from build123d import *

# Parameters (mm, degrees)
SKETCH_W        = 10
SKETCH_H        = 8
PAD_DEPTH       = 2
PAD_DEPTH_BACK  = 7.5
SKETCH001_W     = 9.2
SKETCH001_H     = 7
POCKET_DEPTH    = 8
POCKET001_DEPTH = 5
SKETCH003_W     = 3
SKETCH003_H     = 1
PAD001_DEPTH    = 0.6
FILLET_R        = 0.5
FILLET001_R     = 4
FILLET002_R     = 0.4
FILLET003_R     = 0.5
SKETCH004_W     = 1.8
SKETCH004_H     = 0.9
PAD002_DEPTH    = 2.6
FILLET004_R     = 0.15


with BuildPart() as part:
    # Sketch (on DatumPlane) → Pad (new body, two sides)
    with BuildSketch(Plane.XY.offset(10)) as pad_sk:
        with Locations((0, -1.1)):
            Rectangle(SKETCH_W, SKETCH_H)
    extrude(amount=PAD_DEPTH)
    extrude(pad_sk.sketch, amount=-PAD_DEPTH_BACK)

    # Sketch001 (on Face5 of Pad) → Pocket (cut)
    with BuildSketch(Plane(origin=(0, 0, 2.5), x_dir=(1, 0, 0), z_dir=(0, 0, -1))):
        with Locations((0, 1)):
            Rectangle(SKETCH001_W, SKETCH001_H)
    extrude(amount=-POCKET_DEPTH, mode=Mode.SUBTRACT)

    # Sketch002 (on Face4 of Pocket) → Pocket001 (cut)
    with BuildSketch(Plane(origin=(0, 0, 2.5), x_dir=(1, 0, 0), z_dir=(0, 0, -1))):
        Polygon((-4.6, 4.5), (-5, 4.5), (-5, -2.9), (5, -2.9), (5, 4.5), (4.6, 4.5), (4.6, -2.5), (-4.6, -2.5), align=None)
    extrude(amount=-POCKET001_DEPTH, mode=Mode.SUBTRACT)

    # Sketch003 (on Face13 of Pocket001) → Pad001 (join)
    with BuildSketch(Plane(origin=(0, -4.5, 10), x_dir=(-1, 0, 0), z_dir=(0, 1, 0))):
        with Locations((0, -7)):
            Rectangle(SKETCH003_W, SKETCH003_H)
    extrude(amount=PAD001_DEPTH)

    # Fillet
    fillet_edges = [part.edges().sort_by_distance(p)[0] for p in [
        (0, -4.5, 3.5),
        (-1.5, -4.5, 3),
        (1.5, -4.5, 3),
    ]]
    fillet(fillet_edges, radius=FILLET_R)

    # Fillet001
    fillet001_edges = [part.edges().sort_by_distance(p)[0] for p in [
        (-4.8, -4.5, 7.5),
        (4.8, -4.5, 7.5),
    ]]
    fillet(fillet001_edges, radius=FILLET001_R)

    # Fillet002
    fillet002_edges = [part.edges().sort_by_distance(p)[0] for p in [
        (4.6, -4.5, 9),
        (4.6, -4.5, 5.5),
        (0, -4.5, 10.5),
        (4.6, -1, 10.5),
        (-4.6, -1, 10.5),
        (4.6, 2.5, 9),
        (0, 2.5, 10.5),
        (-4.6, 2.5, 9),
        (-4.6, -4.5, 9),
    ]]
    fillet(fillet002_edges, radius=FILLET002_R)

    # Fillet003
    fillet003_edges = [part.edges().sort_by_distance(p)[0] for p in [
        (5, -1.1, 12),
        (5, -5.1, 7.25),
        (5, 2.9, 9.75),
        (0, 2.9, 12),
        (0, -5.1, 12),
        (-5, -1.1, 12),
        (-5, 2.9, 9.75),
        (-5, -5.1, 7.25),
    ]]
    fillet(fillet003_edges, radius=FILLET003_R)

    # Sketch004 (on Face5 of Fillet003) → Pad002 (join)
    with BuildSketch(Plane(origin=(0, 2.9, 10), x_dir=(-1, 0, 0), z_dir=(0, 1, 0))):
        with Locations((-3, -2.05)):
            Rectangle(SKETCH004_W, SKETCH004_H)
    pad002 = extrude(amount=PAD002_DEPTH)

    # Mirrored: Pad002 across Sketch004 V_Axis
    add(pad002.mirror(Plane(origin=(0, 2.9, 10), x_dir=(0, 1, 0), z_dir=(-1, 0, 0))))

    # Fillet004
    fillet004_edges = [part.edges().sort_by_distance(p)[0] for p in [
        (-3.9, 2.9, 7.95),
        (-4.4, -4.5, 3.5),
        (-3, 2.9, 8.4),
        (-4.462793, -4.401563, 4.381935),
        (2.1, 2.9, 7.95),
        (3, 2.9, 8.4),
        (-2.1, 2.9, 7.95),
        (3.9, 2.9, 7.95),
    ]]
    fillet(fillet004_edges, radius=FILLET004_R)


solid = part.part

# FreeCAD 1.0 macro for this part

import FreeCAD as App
import Part
import Sketcher
Q = App.Units.Quantity


def edges_at(feature, points):
    """Names of the edges that pass closest to the given points."""
    edges = feature.Shape.Edges
    near = lambda p: min(range(len(edges)), key=lambda i: edges[i].distToShape(Part.Vertex(*p))[0])
    return sorted({f"Edge{near(p) + 1}" for p in points})

doc = App.newDocument("Part")
body = doc.addObject("PartDesign::Body", "Body")

# Sketch on XY plane
sketch1 = doc.addObject("Sketcher::SketchObject", "Sketch")
body.addObject(sketch1)
sketch1.AttachmentSupport = (doc.XY_Plane, [""])
sketch1.MapMode = "FlatFace"
sketch1.AttachmentOffset = App.Placement(App.Vector(0, 0, 10), App.Rotation())
sketch1.addGeometry([
    Part.LineSegment(App.Vector(-5, 3, 0), App.Vector(-5, -5, 0)),
    Part.LineSegment(App.Vector(-5, -5, 0), App.Vector(5, -5, 0)),
    Part.LineSegment(App.Vector(5, -5, 0), App.Vector(5, 3, 0)),
    Part.LineSegment(App.Vector(5, 3, 0), App.Vector(-5, 3, 0)),
], False)
sketch1.addConstraint([
    Sketcher.Constraint("Coincident", 0, 2, 1, 1),
    Sketcher.Constraint("Coincident", 1, 2, 2, 1),
    Sketcher.Constraint("Coincident", 2, 2, 3, 1),
    Sketcher.Constraint("Coincident", 3, 2, 0, 1),
    Sketcher.Constraint("Vertical", 0),
    Sketcher.Constraint("Horizontal", 1),
    Sketcher.Constraint("Vertical", 2),
    Sketcher.Constraint("Horizontal", 3),
    Sketcher.Constraint("DistanceX", 1, 1, 1, 2, Q("10 mm")),
    Sketcher.Constraint("DistanceY", 0, 2, 0, 1, Q("8 mm")),
    Sketcher.Constraint("DistanceX", 0, 2, -1, 1, Q("5 mm")),
    Sketcher.Constraint("DistanceY", 0, 2, -1, 1, Q("5.1 mm")),
])
pad1 = doc.addObject("PartDesign::Pad", "Pad")
body.addObject(pad1)
pad1.Profile = sketch1
pad1.Type = "TwoLengths"
pad1.Length = 2
pad1.Length2 = 7.5

# Sketch on XY plane
sketch2 = doc.addObject("Sketcher::SketchObject", "Sketch001")
body.addObject(sketch2)
sketch2.AttachmentSupport = (doc.XY_Plane, [""])
sketch2.MapMode = "FlatFace"
sketch2.AttachmentOffset = App.Placement(App.Vector(0, 0, 2.5), App.Rotation())
sketch2.addGeometry([
    Part.LineSegment(App.Vector(-5, -4, 0), App.Vector(-5, 2, 0)),
    Part.LineSegment(App.Vector(-5, 2, 0), App.Vector(5, 2, 0)),
    Part.LineSegment(App.Vector(5, 2, 0), App.Vector(5, -4, 0)),
    Part.LineSegment(App.Vector(5, -4, 0), App.Vector(-5, -4, 0)),
], False)
sketch2.addConstraint([
    Sketcher.Constraint("Coincident", 0, 2, 1, 1),
    Sketcher.Constraint("Coincident", 1, 2, 2, 1),
    Sketcher.Constraint("Coincident", 2, 2, 3, 1),
    Sketcher.Constraint("Coincident", 3, 2, 0, 1),
    Sketcher.Constraint("Vertical", 0),
    Sketcher.Constraint("Horizontal", 1),
    Sketcher.Constraint("Vertical", 2),
    Sketcher.Constraint("Horizontal", 3),
    Sketcher.Constraint("DistanceY", 0, 1, 0, 2, Q("7 mm")),
    Sketcher.Constraint("DistanceX", 1, 1, 1, 2, Q("9.2 mm")),
    Sketcher.Constraint("DistanceX", 0, 2, -1, 1, Q("4.6 mm")),
    Sketcher.Constraint("DistanceY", -1, 1, 0, 2, Q("2.5 mm")),
])
pocket1 = doc.addObject("PartDesign::Pocket", "Pocket")
body.addObject(pocket1)
pocket1.Profile = sketch2
pocket1.Length = 8
pocket1.Reversed = True

# Sketch on XY plane
sketch3 = doc.addObject("Sketcher::SketchObject", "Sketch002")
body.addObject(sketch3)
sketch3.AttachmentSupport = (doc.XY_Plane, [""])
sketch3.MapMode = "FlatFace"
sketch3.AttachmentOffset = App.Placement(App.Vector(0, 0, 2.5), App.Rotation())
sketch3.addGeometry([
    Part.LineSegment(App.Vector(-4.6, -4.5, 0), App.Vector(-5, -4.5, 0)),  # 0
    Part.LineSegment(App.Vector(-5, -4.5, 0), App.Vector(-5, 2.9, 0)),  # 1
    Part.LineSegment(App.Vector(-5, 2.9, 0), App.Vector(5, 2.9, 0)),  # 2
    Part.LineSegment(App.Vector(5, 2.9, 0), App.Vector(5, -4.5, 0)),  # 3
    Part.LineSegment(App.Vector(5, -4.5, 0), App.Vector(4.6, -4.5, 0)),  # 4
    Part.LineSegment(App.Vector(4.6, -4.5, 0), App.Vector(4.6, 2.5, 0)),  # 5
    Part.LineSegment(App.Vector(4.6, 2.5, 0), App.Vector(-4.6, 2.5, 0)),  # 6
    Part.LineSegment(App.Vector(-4.6, 2.5, 0), App.Vector(-4.6, -4.5, 0)),  # 7
], False)
sketch3.addConstraint([
    Sketcher.Constraint("Coincident", 0, 2, 1, 1),
    Sketcher.Constraint("Coincident", 1, 2, 2, 1),
    Sketcher.Constraint("Coincident", 2, 2, 3, 1),
    Sketcher.Constraint("Coincident", 3, 2, 4, 1),
    Sketcher.Constraint("Coincident", 4, 2, 5, 1),
    Sketcher.Constraint("Coincident", 5, 2, 6, 1),
    Sketcher.Constraint("Coincident", 6, 2, 7, 1),
    Sketcher.Constraint("Coincident", 7, 2, 0, 1),
    Sketcher.Constraint("Horizontal", 0),
    Sketcher.Constraint("Vertical", 1),
    Sketcher.Constraint("Horizontal", 2),
    Sketcher.Constraint("Vertical", 3),
    Sketcher.Constraint("Horizontal", 4),
    Sketcher.Constraint("Vertical", 5),
    Sketcher.Constraint("Horizontal", 6),
    Sketcher.Constraint("Vertical", 7),
    Sketcher.Constraint("Symmetric", 0, 2, 3, 2, -2),
    Sketcher.Constraint("Equal", 0, 4),
    Sketcher.Constraint("DistanceX", 2, 1, 2, 2, Q("10 mm")),
    Sketcher.Constraint("DistanceY", 5, 1, 5, 2, Q("7 mm")),
    Sketcher.Constraint("DistanceX", 0, 2, 0, 1, Q("0.4 mm")),
    Sketcher.Constraint("DistanceY", 1, 1, 1, 2, Q("7.4 mm")),
    Sketcher.Constraint("DistanceY", 0, 2, -1, 1, Q("4.5 mm")),
])
pocket2 = doc.addObject("PartDesign::Pocket", "Pocket001")
body.addObject(pocket2)
pocket2.Profile = sketch3
pocket2.Length = 5
pocket2.Reversed = True

# Sketch on XZ plane
sketch4 = doc.addObject("Sketcher::SketchObject", "Sketch003")
body.addObject(sketch4)
sketch4.AttachmentSupport = (doc.XZ_Plane, [""])
sketch4.MapMode = "FlatFace"
sketch4.AttachmentOffset = App.Placement(App.Vector(0, 0, 4.5), App.Rotation())
sketch4.addGeometry([
    Part.LineSegment(App.Vector(1.5, 3.5, 0), App.Vector(1.5, 2.5, 0)),
    Part.LineSegment(App.Vector(1.5, 2.5, 0), App.Vector(-1.5, 2.5, 0)),
    Part.LineSegment(App.Vector(-1.5, 2.5, 0), App.Vector(-1.5, 3.5, 0)),
    Part.LineSegment(App.Vector(-1.5, 3.5, 0), App.Vector(1.5, 3.5, 0)),
], False)
sketch4.addConstraint([
    Sketcher.Constraint("Coincident", 0, 2, 1, 1),
    Sketcher.Constraint("Coincident", 1, 2, 2, 1),
    Sketcher.Constraint("Coincident", 2, 2, 3, 1),
    Sketcher.Constraint("Coincident", 3, 2, 0, 1),
    Sketcher.Constraint("Vertical", 0),
    Sketcher.Constraint("Horizontal", 1),
    Sketcher.Constraint("Vertical", 2),
    Sketcher.Constraint("Horizontal", 3),
    Sketcher.Constraint("DistanceX", 1, 2, 1, 1, Q("3 mm")),
    Sketcher.Constraint("DistanceY", 0, 2, 0, 1, Q("1 mm")),
    Sketcher.Constraint("DistanceX", -1, 1, 0, 2, Q("1.5 mm")),
    Sketcher.Constraint("DistanceY", -1, 1, 0, 2, Q("2.5 mm")),
])
pad2 = doc.addObject("PartDesign::Pad", "Pad001")
body.addObject(pad2)
pad2.Profile = sketch4
pad2.Length = 0.6
pad2.Reversed = True
doc.recompute()

fillet = doc.addObject("PartDesign::Fillet", "Fillet")
body.addObject(fillet)
fillet.Base = (pad2, edges_at(pad2, [(0, -4.5, 3.5), (-1.5, -4.5, 3), (1.5, -4.5, 3)]))
fillet.Radius = 0.5
doc.recompute()

fillet2 = doc.addObject("PartDesign::Fillet", "Fillet001")
body.addObject(fillet2)
fillet2.Base = (fillet, edges_at(fillet, [(-4.8, -4.5, 7.5), (4.8, -4.5, 7.5)]))
fillet2.Radius = 4
doc.recompute()

fillet3 = doc.addObject("PartDesign::Fillet", "Fillet002")
body.addObject(fillet3)
fillet3.Base = (fillet2, edges_at(fillet2, [
    (4.6, -4.5, 7),
    (4.6, -4.5, 7),
    (0, -4.5, 10.5),
    (4.6, -1, 10.5),
    (-4.6, -1, 10.5),
    (4.6, 2.5, 9),
    (0, 2.5, 10.5),
    (-4.6, 2.5, 9),
    (-4.6, -4.5, 7),
]))
fillet3.Radius = 0.4
doc.recompute()

fillet4 = doc.addObject("PartDesign::Fillet", "Fillet003")
body.addObject(fillet4)
fillet4.Base = (fillet3, edges_at(fillet3, [
    (5, -1.1, 12),
    (5, -5.1, 7.25),
    (5, 2.9, 9.75),
    (0, 2.9, 12),
    (0, -5.1, 12),
    (-5, -1.1, 12),
    (-5, 2.9, 9.75),
    (-5, -5.1, 7.25),
]))
fillet4.Radius = 0.5

# Sketch on XZ plane
sketch5 = doc.addObject("Sketcher::SketchObject", "Sketch004")
body.addObject(sketch5)
sketch5.AttachmentSupport = (doc.XZ_Plane, [""])
sketch5.MapMode = "FlatFace"
sketch5.AttachmentOffset = App.Placement(App.Vector(0, 0, -2.9), App.Rotation())
sketch5.addGeometry([
    Part.LineSegment(App.Vector(3.9, 8.4, 0), App.Vector(3.9, 7.5, 0)),
    Part.LineSegment(App.Vector(3.9, 7.5, 0), App.Vector(2.1, 7.5, 0)),
    Part.LineSegment(App.Vector(2.1, 7.5, 0), App.Vector(2.1, 8.4, 0)),
    Part.LineSegment(App.Vector(2.1, 8.4, 0), App.Vector(3.9, 8.4, 0)),
], False)
sketch5.addConstraint([
    Sketcher.Constraint("Coincident", 0, 2, 1, 1),
    Sketcher.Constraint("Coincident", 1, 2, 2, 1),
    Sketcher.Constraint("Coincident", 2, 2, 3, 1),
    Sketcher.Constraint("Coincident", 3, 2, 0, 1),
    Sketcher.Constraint("Vertical", 0),
    Sketcher.Constraint("Horizontal", 1),
    Sketcher.Constraint("Vertical", 2),
    Sketcher.Constraint("Horizontal", 3),
    Sketcher.Constraint("DistanceX", 1, 2, 1, 1, Q("1.8 mm")),
    Sketcher.Constraint("DistanceY", 0, 2, 0, 1, Q("0.9 mm")),
    Sketcher.Constraint("DistanceX", -1, 1, 0, 2, Q("3.9 mm")),
    Sketcher.Constraint("DistanceY", -1, 1, 0, 2, Q("7.5 mm")),
])
pad3 = doc.addObject("PartDesign::Pad", "Pad002")
body.addObject(pad3)
pad3.Profile = sketch5
pad3.Length = 2.6
pad3.Reversed = True
doc.recompute()

mirrored = doc.addObject("PartDesign::Mirrored", "Mirrored")
body.addObject(mirrored)
mirrored.Originals = [pad3]
mirrored.MirrorPlane = (doc.YZ_Plane, [""])
body.Tip = mirrored
doc.recompute()

fillet5 = doc.addObject("PartDesign::Fillet", "Fillet004")
body.addObject(fillet5)
fillet5.Base = (mirrored, edges_at(mirrored, [
    (-3.9, 2.9, 7.95),
    (-4.6, -4.5, 3.5),
    (-3, 2.9, 8.4),
    (-4.463, -4.402, 4.382),
    (2.1, 2.9, 7.95),
    (3, 2.9, 8.4),
    (-2.1, 2.9, 7.95),
    (3.9, 2.9, 7.95),
]))
fillet5.Radius = 0.15

doc.recompute()
